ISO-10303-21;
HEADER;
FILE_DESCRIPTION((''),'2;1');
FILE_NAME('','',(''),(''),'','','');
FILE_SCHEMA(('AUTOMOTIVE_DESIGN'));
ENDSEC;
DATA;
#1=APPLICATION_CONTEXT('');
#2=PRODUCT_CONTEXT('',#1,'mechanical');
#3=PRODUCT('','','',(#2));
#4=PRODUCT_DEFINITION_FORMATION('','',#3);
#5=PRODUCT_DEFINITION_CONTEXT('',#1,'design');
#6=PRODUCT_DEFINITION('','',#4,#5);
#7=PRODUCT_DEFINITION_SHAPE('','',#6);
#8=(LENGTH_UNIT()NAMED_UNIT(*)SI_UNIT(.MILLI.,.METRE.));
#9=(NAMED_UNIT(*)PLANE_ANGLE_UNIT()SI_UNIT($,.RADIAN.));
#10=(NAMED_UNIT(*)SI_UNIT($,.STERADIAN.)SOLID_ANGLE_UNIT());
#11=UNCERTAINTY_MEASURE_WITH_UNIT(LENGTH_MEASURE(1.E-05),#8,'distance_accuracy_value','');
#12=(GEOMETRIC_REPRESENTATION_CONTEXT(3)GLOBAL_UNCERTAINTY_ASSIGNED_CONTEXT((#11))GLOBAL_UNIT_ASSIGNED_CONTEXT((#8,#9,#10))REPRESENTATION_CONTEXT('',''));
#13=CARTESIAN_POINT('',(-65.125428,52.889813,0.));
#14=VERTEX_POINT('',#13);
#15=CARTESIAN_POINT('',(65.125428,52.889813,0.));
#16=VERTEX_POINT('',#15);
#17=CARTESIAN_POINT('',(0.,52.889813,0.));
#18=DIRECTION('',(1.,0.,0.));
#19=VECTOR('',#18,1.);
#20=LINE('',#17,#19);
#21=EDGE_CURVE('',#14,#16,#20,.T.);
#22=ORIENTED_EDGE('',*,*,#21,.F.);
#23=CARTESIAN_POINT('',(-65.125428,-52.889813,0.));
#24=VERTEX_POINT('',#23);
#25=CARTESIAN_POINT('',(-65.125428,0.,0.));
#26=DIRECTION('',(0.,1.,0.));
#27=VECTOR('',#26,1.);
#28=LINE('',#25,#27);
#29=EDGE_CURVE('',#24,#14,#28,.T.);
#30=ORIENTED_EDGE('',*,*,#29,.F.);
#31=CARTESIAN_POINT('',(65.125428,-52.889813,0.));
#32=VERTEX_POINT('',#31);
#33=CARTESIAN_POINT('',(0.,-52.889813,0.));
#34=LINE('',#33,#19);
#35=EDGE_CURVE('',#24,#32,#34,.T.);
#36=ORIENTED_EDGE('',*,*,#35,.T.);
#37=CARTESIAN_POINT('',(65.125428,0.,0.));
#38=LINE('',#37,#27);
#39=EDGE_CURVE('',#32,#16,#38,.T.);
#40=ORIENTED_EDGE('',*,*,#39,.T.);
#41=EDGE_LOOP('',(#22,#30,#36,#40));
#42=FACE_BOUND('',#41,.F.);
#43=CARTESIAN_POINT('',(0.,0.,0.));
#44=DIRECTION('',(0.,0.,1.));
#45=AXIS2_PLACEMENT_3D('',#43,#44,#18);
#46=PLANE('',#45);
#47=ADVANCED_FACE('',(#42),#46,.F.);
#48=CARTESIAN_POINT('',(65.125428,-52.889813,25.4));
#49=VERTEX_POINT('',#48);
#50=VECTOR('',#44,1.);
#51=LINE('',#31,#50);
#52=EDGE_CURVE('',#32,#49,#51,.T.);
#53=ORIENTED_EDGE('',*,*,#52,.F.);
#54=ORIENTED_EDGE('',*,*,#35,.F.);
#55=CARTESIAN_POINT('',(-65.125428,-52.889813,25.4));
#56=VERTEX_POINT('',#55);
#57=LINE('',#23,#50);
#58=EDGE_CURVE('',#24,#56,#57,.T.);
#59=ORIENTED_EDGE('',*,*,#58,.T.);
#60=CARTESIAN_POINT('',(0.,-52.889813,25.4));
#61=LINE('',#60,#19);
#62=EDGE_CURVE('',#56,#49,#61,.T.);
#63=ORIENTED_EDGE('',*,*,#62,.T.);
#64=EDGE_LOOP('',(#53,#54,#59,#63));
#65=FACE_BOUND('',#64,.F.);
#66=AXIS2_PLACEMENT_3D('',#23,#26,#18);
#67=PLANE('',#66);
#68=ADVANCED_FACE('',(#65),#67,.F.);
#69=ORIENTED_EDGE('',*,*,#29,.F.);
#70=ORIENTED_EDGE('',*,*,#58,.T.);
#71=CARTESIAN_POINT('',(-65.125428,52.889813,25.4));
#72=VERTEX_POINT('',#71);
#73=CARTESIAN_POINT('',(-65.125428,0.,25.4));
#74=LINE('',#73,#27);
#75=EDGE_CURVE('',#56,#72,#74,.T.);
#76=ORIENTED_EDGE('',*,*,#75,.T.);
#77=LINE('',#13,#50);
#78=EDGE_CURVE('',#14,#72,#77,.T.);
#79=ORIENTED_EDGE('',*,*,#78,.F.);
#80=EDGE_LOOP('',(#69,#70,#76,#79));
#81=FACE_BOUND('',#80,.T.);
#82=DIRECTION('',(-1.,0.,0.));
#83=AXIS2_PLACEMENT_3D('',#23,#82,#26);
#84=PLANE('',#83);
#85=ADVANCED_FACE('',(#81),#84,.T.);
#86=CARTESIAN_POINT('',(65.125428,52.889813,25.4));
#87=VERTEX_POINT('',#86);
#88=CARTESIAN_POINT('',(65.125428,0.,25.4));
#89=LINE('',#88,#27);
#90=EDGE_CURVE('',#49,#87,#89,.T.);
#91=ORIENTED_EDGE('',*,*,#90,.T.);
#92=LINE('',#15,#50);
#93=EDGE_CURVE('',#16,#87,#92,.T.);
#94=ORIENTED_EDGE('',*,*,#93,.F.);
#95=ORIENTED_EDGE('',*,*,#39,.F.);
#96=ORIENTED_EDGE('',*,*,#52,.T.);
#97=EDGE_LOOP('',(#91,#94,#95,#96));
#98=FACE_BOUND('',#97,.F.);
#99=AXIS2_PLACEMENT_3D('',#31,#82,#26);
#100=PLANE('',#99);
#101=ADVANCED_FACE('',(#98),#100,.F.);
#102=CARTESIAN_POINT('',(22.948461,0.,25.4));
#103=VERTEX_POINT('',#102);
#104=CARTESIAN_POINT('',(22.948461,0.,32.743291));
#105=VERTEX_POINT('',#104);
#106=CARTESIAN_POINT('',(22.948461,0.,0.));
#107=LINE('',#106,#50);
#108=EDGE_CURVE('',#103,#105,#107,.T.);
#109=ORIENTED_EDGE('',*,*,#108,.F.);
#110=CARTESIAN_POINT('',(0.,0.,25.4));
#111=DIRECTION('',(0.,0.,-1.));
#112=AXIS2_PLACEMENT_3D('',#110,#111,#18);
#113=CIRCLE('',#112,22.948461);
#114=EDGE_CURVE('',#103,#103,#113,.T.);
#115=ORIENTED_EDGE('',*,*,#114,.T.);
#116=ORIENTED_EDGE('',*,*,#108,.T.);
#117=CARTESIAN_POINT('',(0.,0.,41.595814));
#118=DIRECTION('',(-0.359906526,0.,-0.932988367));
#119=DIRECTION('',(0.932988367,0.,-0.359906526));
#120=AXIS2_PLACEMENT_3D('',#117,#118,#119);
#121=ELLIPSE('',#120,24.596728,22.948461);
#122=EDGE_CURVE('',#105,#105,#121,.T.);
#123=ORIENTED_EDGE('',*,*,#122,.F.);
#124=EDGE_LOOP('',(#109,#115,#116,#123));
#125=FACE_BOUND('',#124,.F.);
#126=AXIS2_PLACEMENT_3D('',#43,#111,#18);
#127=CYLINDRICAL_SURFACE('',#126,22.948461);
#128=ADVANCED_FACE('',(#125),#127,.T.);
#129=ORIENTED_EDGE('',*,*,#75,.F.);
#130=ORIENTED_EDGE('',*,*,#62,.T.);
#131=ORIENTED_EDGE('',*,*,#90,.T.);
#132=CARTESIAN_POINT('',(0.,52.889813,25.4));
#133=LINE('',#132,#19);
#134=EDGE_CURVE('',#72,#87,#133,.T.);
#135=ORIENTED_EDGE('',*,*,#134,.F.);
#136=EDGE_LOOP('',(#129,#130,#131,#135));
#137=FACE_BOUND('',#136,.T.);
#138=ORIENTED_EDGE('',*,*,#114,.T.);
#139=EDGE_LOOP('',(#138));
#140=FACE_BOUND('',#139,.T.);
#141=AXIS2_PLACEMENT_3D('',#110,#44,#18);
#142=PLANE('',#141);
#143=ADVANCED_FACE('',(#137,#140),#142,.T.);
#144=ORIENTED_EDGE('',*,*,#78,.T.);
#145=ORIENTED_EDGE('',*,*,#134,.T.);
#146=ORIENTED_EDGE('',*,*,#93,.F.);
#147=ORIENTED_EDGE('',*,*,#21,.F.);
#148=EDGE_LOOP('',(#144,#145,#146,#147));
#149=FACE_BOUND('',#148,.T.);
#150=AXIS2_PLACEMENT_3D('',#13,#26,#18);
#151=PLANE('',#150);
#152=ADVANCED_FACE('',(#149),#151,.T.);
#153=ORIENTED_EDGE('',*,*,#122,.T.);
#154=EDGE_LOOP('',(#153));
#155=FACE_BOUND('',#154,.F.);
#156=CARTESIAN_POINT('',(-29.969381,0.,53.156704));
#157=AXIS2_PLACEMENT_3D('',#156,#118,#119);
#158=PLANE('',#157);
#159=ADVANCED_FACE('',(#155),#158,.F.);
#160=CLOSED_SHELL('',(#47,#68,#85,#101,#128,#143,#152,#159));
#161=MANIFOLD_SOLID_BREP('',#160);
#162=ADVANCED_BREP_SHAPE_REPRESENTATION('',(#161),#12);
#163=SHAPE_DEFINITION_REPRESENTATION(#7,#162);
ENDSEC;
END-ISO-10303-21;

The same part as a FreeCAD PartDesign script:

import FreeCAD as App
import Part
import Sketcher

V = App.Vector

doc = App.newDocument("Part")
params = doc.addObject("Spreadsheet::Sheet", "Params")
for row, (alias, value) in enumerate([
    ("pad1_length", "2 in"),
    ("pad2_length", "1 in"),
    ("pocket1_length", "10 in"),
], start=1):
    params.set(f"A{row}", alias)
    params.set(f"B{row}", "=" + value)
    params.setAlias(f"B{row}", alias)

body = doc.addObject("PartDesign::Body", "Body")

# Sketch on XY plane
sketch1 = doc.addObject("Sketcher::SketchObject", "Sketch")
body.addObject(sketch1)
sketch1.AttachmentSupport = (doc.XY_Plane, [""])
sketch1.MapMode = "FlatFace"
sketch1.addGeometry(Part.Circle(V(0, 0, 0), V(0, 0, 1), 23), False)
sketch1.addConstraint([
    Sketcher.Constraint("Coincident", 0, 3, -1, 1),
    Sketcher.Constraint("Diameter", 0, 45.896922),
])
pad1 = doc.addObject("PartDesign::Pad", "Pad")
body.addObject(pad1)
pad1.Profile = sketch1
pad1.setExpression("Length", "Params.pad1_length")

# Sketch on XY plane
sketch2 = doc.addObject("Sketcher::SketchObject", "Sketch001")
body.addObject(sketch2)
sketch2.AttachmentSupport = (doc.XY_Plane, [""])
sketch2.MapMode = "FlatFace"
sketch2.addGeometry([
    Part.LineSegment(V(-65, 53, 0), V(-65, -53, 0)),
    Part.LineSegment(V(-65, -53, 0), V(65, -53, 0)),
    Part.LineSegment(V(65, -53, 0), V(65, 53, 0)),
    Part.LineSegment(V(65, 53, 0), V(-65, 53, 0)),
], False)
sketch2.addConstraint([
    Sketcher.Constraint("Coincident", 0, 2, 1, 1),
    Sketcher.Constraint("Coincident", 1, 2, 2, 1),
    Sketcher.Constraint("Coincident", 2, 2, 3, 1),
    Sketcher.Constraint("Coincident", 3, 2, 0, 1),
    Sketcher.Constraint("Vertical", 0),
    Sketcher.Constraint("Horizontal", 1),
    Sketcher.Constraint("Vertical", 2),
    Sketcher.Constraint("Horizontal", 3),
    Sketcher.Constraint("Symmetric", 0, 2, 2, 2, -1, 1),
    Sketcher.Constraint("DistanceX", 1, 1, 1, 2, 130.250856),
    Sketcher.Constraint("DistanceY", 0, 2, 0, 1, 105.779626),
])
pad2 = doc.addObject("PartDesign::Pad", "Pad001")
body.addObject(pad2)
pad2.Profile = sketch2
pad2.setExpression("Length", "Params.pad2_length")

# Sketch on XZ plane
sketch3 = doc.addObject("Sketcher::SketchObject", "Sketch002")
body.addObject(sketch3)
sketch3.AttachmentSupport = (doc.XZ_Plane, [""])
sketch3.MapMode = "FlatFace"
sketch3.addGeometry([
    Part.LineSegment(V(-30, 53.2, 0), V(31.8, 29.3, 0)),
    Part.LineSegment(V(31.8, 29.3, 0), V(33.3, 51, 0)),
    Part.LineSegment(V(33.3, 51, 0), V(33.5, 53.2, 0)),
    Part.LineSegment(V(33.5, 53.2, 0), V(-30, 53.2, 0)),
], False)
sketch3.addConstraint([
    Sketcher.Constraint("Coincident", 0, 2, 1, 1),
    Sketcher.Constraint("Coincident", 1, 2, 2, 1),
    Sketcher.Constraint("Coincident", 2, 2, 3, 1),
    Sketcher.Constraint("Coincident", 3, 2, 0, 1),
    Sketcher.Constraint("Horizontal", 3),
    Sketcher.Constraint("Parallel", 1, 2),
    Sketcher.Constraint("Distance", 0, 66.208491),
    Sketcher.Constraint("Distance", 1, 21.70423),
    Sketcher.Constraint("DistanceX", 3, 2, 3, 1, 63.421445),
    Sketcher.Constraint("DistanceX", -1, 1, 0, 2, 31.802371),
    Sketcher.Constraint("DistanceY", -1, 1, 1, 2, 50.980239),
    Sketcher.Constraint("DistanceX", 3, 2, -1, 1, 29.969381),
])
pocket1 = doc.addObject("PartDesign::Pocket", "Pocket")
body.addObject(pocket1)
pocket1.Profile = sketch3
pocket1.setExpression("Length", "Params.pocket1_length")
pocket1.Midplane = True

doc.recompute()
